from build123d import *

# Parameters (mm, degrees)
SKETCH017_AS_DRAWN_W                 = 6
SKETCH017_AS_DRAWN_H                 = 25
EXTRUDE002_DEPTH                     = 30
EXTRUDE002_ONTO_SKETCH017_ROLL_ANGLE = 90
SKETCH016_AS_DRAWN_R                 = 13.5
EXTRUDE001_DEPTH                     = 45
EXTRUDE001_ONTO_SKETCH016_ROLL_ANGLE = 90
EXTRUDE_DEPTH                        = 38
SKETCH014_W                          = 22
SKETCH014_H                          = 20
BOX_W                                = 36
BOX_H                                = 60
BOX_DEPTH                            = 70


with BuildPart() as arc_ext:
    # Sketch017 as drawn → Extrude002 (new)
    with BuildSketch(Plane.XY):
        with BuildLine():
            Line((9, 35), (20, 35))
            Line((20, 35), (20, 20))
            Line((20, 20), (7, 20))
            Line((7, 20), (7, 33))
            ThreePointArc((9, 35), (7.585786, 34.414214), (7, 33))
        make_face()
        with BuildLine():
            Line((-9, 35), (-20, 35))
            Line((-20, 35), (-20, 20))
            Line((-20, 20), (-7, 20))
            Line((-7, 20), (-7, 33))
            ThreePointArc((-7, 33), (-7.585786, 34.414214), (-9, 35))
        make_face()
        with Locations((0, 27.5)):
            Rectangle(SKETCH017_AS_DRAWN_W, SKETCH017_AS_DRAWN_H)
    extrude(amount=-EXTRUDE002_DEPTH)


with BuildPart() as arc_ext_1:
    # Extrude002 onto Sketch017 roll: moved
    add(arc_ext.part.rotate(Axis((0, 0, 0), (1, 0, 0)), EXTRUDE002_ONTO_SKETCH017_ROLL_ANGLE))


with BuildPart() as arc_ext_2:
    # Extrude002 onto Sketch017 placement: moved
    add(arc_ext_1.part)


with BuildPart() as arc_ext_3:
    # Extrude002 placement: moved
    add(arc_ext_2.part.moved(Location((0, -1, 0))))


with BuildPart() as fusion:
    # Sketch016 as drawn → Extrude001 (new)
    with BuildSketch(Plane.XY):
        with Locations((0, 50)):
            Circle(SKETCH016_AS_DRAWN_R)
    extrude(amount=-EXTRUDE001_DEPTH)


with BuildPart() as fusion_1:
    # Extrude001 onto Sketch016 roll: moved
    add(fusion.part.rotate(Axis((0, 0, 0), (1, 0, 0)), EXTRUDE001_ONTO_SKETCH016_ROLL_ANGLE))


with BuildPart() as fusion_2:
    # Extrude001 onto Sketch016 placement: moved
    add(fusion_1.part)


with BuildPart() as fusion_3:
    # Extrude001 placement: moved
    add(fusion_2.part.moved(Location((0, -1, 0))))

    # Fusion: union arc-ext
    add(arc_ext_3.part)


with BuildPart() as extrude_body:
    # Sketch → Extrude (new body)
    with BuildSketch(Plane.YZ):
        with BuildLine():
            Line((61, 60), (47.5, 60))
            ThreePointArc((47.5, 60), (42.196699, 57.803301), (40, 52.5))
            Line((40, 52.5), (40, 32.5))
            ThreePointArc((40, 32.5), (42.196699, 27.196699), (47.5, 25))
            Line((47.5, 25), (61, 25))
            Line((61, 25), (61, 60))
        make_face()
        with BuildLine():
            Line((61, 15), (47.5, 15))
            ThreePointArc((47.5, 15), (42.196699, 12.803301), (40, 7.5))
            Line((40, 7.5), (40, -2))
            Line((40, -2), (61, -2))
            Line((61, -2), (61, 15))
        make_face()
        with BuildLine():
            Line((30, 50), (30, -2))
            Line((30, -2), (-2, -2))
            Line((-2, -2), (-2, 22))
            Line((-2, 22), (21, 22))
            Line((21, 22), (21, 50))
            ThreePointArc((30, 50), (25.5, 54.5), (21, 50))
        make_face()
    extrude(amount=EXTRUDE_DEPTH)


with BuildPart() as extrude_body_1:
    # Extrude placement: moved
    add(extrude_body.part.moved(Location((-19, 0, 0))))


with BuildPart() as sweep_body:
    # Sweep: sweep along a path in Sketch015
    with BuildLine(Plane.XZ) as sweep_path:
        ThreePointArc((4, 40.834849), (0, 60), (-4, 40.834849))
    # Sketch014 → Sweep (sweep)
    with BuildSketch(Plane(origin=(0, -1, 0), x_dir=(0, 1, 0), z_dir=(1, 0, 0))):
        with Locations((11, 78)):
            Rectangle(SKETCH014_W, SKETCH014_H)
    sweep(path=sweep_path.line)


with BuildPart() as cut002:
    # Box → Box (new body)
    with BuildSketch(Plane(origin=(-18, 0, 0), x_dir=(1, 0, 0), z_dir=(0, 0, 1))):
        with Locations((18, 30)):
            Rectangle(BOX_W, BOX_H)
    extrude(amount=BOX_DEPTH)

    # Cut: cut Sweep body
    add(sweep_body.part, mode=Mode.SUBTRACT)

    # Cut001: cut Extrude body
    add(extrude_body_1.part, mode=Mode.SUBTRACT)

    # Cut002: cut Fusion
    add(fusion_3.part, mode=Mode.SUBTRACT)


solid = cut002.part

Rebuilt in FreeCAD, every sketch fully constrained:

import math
import FreeCAD as App
import Part
import Sketcher

V = App.Vector


def add_polygon(sketch, points):
    """Adds a closed chain of lines whose ends are joined by coincident constraints."""
    first, n = sketch.GeometryCount, len(points)
    for a, b in zip(points, points[1:] + points[:1]):
        sketch.addGeometry(Part.LineSegment(App.Vector(*a, 0), App.Vector(*b, 0)), False)
    for i in range(n):
        sketch.addConstraint(Sketcher.Constraint("Coincident", first + i, 2, first + (i + 1) % n, 1))

doc = App.newDocument("Part")
params = doc.addObject("Spreadsheet::Sheet", "Params")
for row, (alias, value) in enumerate([
    ("sketch1_radius", "1.999999 mm"),
    ("sketch1_width", "11 mm"),
    ("sketch1_width2", "6 mm"),
    ("sketch1_height", "25 mm"),
    ("pad1_length", "30 mm"),
    ("sketch2_diameter", "27 mm"),
    ("pad2_length", "45 mm"),
    ("sketch3_radius", "7.5 mm"),
    ("sketch3_radius2", "4.5 mm"),
    ("sketch3_width", "21 mm"),
    ("sketch3_width2", "23 mm"),
    ("sketch3_height", "20 mm"),
    ("pad3_length", "38 mm"),
    ("sketch4_width", "22 mm"),
    ("sketch4_height", "20 mm"),
    ("sketch5_radius", "10 mm"),
    ("sketch6_width", "36 mm"),
    ("sketch6_height", "60 mm"),
    ("pad4_length", "70 mm"),
], start=1):
    params.set(f"A{row}", alias)
    params.set(f"B{row}", "=" + value)
    params.setAlias(f"B{row}", alias)

body = doc.addObject("PartDesign::Body", "Body")
body.AllowCompound = True

# Sketch on XY plane
sketch1 = doc.addObject("Sketcher::SketchObject", "Sketch")
body.addObject(sketch1)
sketch1.AttachmentSupport = (doc.XY_Plane, [""])
sketch1.MapMode = "FlatFace"
sketch1.addGeometry(Part.LineSegment(V(20, 35, 0), V(9, 35, 0)), False)  # 0
sketch1.addGeometry(Part.ArcOfCircle(Part.Circle(V(9, 33, 0), V(0, 0, 1), 2), math.radians(90), math.radians(180)), False)  # 1
sketch1.addGeometry(Part.LineSegment(V(7, 33, 0), V(7, 20, 0)), False)  # 2
sketch1.addGeometry(Part.LineSegment(V(7, 20, 0), V(20, 20, 0)), False)  # 3
sketch1.addGeometry(Part.LineSegment(V(20, 20, 0), V(20, 35, 0)), False)  # 4
sketch1.addGeometry(Part.LineSegment(V(-9, 35, 0), V(-20, 35, 0)), False)  # 5
sketch1.addGeometry(Part.LineSegment(V(-20, 35, 0), V(-20, 20, 0)), False)  # 6
sketch1.addGeometry(Part.LineSegment(V(-20, 20, 0), V(-7, 20, 0)), False)  # 7
sketch1.addGeometry(Part.LineSegment(V(-7, 20, 0), V(-7, 33, 0)), False)  # 8
sketch1.addGeometry(Part.ArcOfCircle(Part.Circle(V(-9, 33, 0), V(0, 0, 1), 2), math.radians(0), math.radians(90)), False)  # 9
add_polygon(sketch1, [(-3, 40), (-3, 15), (3, 15), (3, 40)])  # lines 10-13
sketch1.addConstraint([
    Sketcher.Constraint("Tangent", 0, 2, 1, 1),
    Sketcher.Constraint("Tangent", 1, 2, 2, 1),
    Sketcher.Constraint("Coincident", 2, 2, 3, 1),
    Sketcher.Constraint("Coincident", 3, 2, 4, 1),
    Sketcher.Constraint("Coincident", 4, 2, 0, 1),
    Sketcher.Constraint("Coincident", 5, 2, 6, 1),
    Sketcher.Constraint("Coincident", 6, 2, 7, 1),
    Sketcher.Constraint("Coincident", 7, 2, 8, 1),
    Sketcher.Constraint("Tangent", 8, 2, 9, 1),
    Sketcher.Constraint("Tangent", 9, 2, 5, 1),
    Sketcher.Constraint("Horizontal", 0),
    Sketcher.Constraint("Vertical", 2),
    Sketcher.Constraint("Horizontal", 3),
    Sketcher.Constraint("Vertical", 4),
    Sketcher.Constraint("Horizontal", 5),
    Sketcher.Constraint("Vertical", 6),
    Sketcher.Constraint("Horizontal", 7),
    Sketcher.Constraint("Vertical", 8),
    Sketcher.Constraint("Vertical", 10),
    Sketcher.Constraint("Horizontal", 11),
    Sketcher.Constraint("Vertical", 12),
    Sketcher.Constraint("Horizontal", 13),
    Sketcher.Constraint("Equal", 1, 9),
    Sketcher.Constraint("Symmetric", 1, 3, 9, 3, -2),
    Sketcher.Constraint("Symmetric", 3, 2, 6, 2, -2),
    Sketcher.Constraint("Equal", 7, 2),
    Sketcher.Constraint("Radius", 1, 1.999999),
    Sketcher.Constraint("DistanceX", 0, 2, 0, 1, 11.0),
    Sketcher.Constraint("DistanceX", 11, 1, 11, 2, 6.0),
    Sketcher.Constraint("DistanceY", 10, 2, 10, 1, 25.0),
    Sketcher.Constraint("DistanceX", -1, 1, 1, 3, 8.999999),
    Sketcher.Constraint("DistanceY", -1, 1, 1, 3, 33.000001),
    Sketcher.Constraint("DistanceX", 10, 2, -1, 1, 3.0),
    Sketcher.Constraint("DistanceY", -1, 1, 10, 2, 15.0),
])
sketch1.setExpression("Constraints[30]", "Params.sketch1_radius")
sketch1.setExpression("Constraints[31]", "Params.sketch1_width")
sketch1.setExpression("Constraints[32]", "Params.sketch1_width2")
sketch1.setExpression("Constraints[33]", "Params.sketch1_height")
pad1 = doc.addObject("PartDesign::Pad", "Pad")
body.addObject(pad1)
pad1.Profile = sketch1
pad1.setExpression("Length", "Params.pad1_length")
pad1.Reversed = True
body2 = doc.addObject("PartDesign::Body", "Body001")
body2.AllowCompound = True
doc.recompute()

body.Placement = App.Placement(V(0, 0, 0), App.Rotation(V(1, 0, 0), 90))
boolean = doc.addObject("PartDesign::Boolean", "Boolean")
body2.addObject(boolean)
boolean.Type = "Fuse"
boolean.addObjects([body])
body3 = doc.addObject("PartDesign::Body", "Body002")
body3.AllowCompound = True
doc.recompute()

body2.Placement = App.Placement(V(0, -1, 0), App.Rotation(V(0, 0, 1), 0))
boolean2 = doc.addObject("PartDesign::Boolean", "Boolean001")
body3.addObject(boolean2)
boolean2.Type = "Fuse"
boolean2.addObjects([body2])
body4 = doc.addObject("PartDesign::Body", "Body003")

# Sketch on XY plane
sketch2 = doc.addObject("Sketcher::SketchObject", "Sketch001")
body4.addObject(sketch2)
sketch2.AttachmentSupport = (doc.getObject("XY_Plane003"), [""])
sketch2.MapMode = "FlatFace"
sketch2.addGeometry(Part.Circle(V(0, 50, 0), V(0, 0, 1), 14), False)
sketch2.addConstraint([
    Sketcher.Constraint("PointOnObject", 0, 3, -2),
    Sketcher.Constraint("Diameter", 0, 27.0),
    Sketcher.Constraint("DistanceY", -1, 1, 0, 3, 50.0),
])
sketch2.setExpression("Constraints[1]", "Params.sketch2_diameter")
pad2 = doc.addObject("PartDesign::Pad", "Pad001")
body4.addObject(pad2)
pad2.Profile = sketch2
pad2.setExpression("Length", "Params.pad2_length")
pad2.Reversed = True
body5 = doc.addObject("PartDesign::Body", "Body004")
doc.recompute()

body4.Placement = App.Placement(V(0, 0, 0), App.Rotation(V(1, 0, 0), 90))
boolean3 = doc.addObject("PartDesign::Boolean", "Boolean002")
body5.addObject(boolean3)
boolean3.Type = "Fuse"
boolean3.addObjects([body4])
body6 = doc.addObject("PartDesign::Body", "Body005")
body6.AllowCompound = True
doc.recompute()

body5.Placement = App.Placement(V(0, -1, 0), App.Rotation(V(0, 0, 1), 0))
boolean4 = doc.addObject("PartDesign::Boolean", "Boolean003")
body6.addObject(boolean4)
boolean4.Type = "Fuse"
boolean4.addObjects([body5])
doc.recompute()

boolean5 = doc.addObject("PartDesign::Boolean", "Boolean004")
body6.addObject(boolean5)
boolean5.Type = "Fuse"
boolean5.addObjects([body3])
body7 = doc.addObject("PartDesign::Body", "Body006")
body7.AllowCompound = True

# Sketch on YZ plane
sketch3 = doc.addObject("Sketcher::SketchObject", "Sketch002")
body7.addObject(sketch3)
sketch3.AttachmentSupport = (doc.getObject("YZ_Plane006"), [""])
sketch3.MapMode = "FlatFace"
sketch3.addGeometry([
    Part.LineSegment(V(61, 60, 0), V(47.5, 60, 0)),  # 0
    Part.ArcOfCircle(Part.Circle(V(47.5, 52.5, 0), V(0, 0, 1), 7.5), math.radians(90), math.radians(180)),  # 1
    Part.LineSegment(V(40, 52.5, 0), V(40, 32.5, 0)),  # 2
    Part.ArcOfCircle(Part.Circle(V(47.5, 32.5, 0), V(0, 0, 1), 7.5), math.radians(180), math.radians(270)),  # 3
    Part.LineSegment(V(47.5, 25, 0), V(61, 25, 0)),  # 4
    Part.LineSegment(V(61, 25, 0), V(61, 60, 0)),  # 5
    Part.LineSegment(V(61, 15, 0), V(47.5, 15, 0)),  # 6
    Part.ArcOfCircle(Part.Circle(V(47.5, 7.5, 0), V(0, 0, 1), 7.5), math.radians(90), math.radians(180)),  # 7
    Part.LineSegment(V(40, 7.5, 0), V(40, -2, 0)),  # 8
    Part.LineSegment(V(40, -2, 0), V(61, -2, 0)),  # 9
    Part.LineSegment(V(61, -2, 0), V(61, 15, 0)),  # 10
    Part.LineSegment(V(30, -2, 0), V(30, 50, 0)),  # 11
    Part.ArcOfCircle(Part.Circle(V(25.5, 50, 0), V(0, 0, 1), 4.5), math.radians(0), math.radians(180)),  # 12
    Part.LineSegment(V(21, 50, 0), V(21, 22, 0)),  # 13
    Part.LineSegment(V(21, 22, 0), V(-2, 22, 0)),  # 14
    Part.LineSegment(V(-2, 22, 0), V(-2, -2, 0)),  # 15
    Part.LineSegment(V(-2, -2, 0), V(30, -2, 0)),  # 16
], False)
sketch3.addConstraint([
    Sketcher.Constraint("Tangent", 0, 2, 1, 1),
    Sketcher.Constraint("Tangent", 1, 2, 2, 1),
    Sketcher.Constraint("Tangent", 2, 2, 3, 1),
    Sketcher.Constraint("Tangent", 3, 2, 4, 1),
    Sketcher.Constraint("Coincident", 4, 2, 5, 1),
    Sketcher.Constraint("Coincident", 5, 2, 0, 1),
    Sketcher.Constraint("Tangent", 6, 2, 7, 1),
    Sketcher.Constraint("Tangent", 7, 2, 8, 1),
    Sketcher.Constraint("Coincident", 8, 2, 9, 1),
    Sketcher.Constraint("Coincident", 9, 2, 10, 1),
    Sketcher.Constraint("Coincident", 10, 2, 6, 1),
    Sketcher.Constraint("Tangent", 11, 2, 12, 1),
    Sketcher.Constraint("Tangent", 12, 2, 13, 1),
    Sketcher.Constraint("Coincident", 13, 2, 14, 1),
    Sketcher.Constraint("Coincident", 14, 2, 15, 1),
    Sketcher.Constraint("Coincident", 15, 2, 16, 1),
    Sketcher.Constraint("Coincident", 16, 2, 11, 1),
    Sketcher.Constraint("Horizontal", 0),
    Sketcher.Constraint("Vertical", 2),
    Sketcher.Constraint("Horizontal", 4),
    Sketcher.Constraint("Vertical", 5),
    Sketcher.Constraint("Horizontal", 6),
    Sketcher.Constraint("Vertical", 8),
    Sketcher.Constraint("Horizontal", 9),
    Sketcher.Constraint("Vertical", 10),
    Sketcher.Constraint("Vertical", 11),
    Sketcher.Constraint("Vertical", 13),
    Sketcher.Constraint("Horizontal", 14),
    Sketcher.Constraint("Vertical", 15),
    Sketcher.Constraint("Horizontal", 16),
    Sketcher.Constraint("Equal", 1, 3),
    Sketcher.Constraint("Equal", 3, 7),
    Sketcher.Constraint("Horizontal", 9, 2, 15, 2),
    Sketcher.Constraint("Vertical", 3, 3, 7, 3),
    Sketcher.Constraint("Vertical", 5, 2, 9, 2),
    Sketcher.Constraint("Radius", 1, 7.5),
    Sketcher.Constraint("Radius", 12, 4.5),
    Sketcher.Constraint("DistanceX", 9, 1, 9, 2, 21.0),
    Sketcher.Constraint("DistanceX", 14, 2, 14, 1, 23.0),
    Sketcher.Constraint("DistanceY", 2, 2, 2, 1, 20.0),
    Sketcher.Constraint("DistanceY", 10, 1, 10, 2, 17.0),
    Sketcher.Constraint("DistanceY", 11, 1, 11, 2, 52.0),
    Sketcher.Constraint("DistanceY", 13, 2, 13, 1, 28.0),
    Sketcher.Constraint("DistanceY", -1, 1, 12, 3, 50.0),
    Sketcher.Constraint("DistanceY", -1, 1, 0, 2, 60.0),
    Sketcher.Constraint("DistanceX", -1, 1, 1, 2, 40.0),
    Sketcher.Constraint("DistanceX", -1, 1, 11, 2, 30.0),
])
sketch3.setExpression("Constraints[35]", "Params.sketch3_radius")
sketch3.setExpression("Constraints[36]", "Params.sketch3_radius2")
sketch3.setExpression("Constraints[37]", "Params.sketch3_width")
sketch3.setExpression("Constraints[38]", "Params.sketch3_width2")
sketch3.setExpression("Constraints[39]", "Params.sketch3_height")
pad3 = doc.addObject("PartDesign::Pad", "Pad002")
body7.addObject(pad3)
pad3.Profile = sketch3
pad3.setExpression("Length", "Params.pad3_length")
body8 = doc.addObject("PartDesign::Body", "Body007")
body8.AllowCompound = True
doc.recompute()

body7.Placement = App.Placement(V(-19, 0, 0), App.Rotation(V(0, 0, 1), 0))
boolean6 = doc.addObject("PartDesign::Boolean", "Boolean005")
body8.addObject(boolean6)
boolean6.Type = "Fuse"
boolean6.addObjects([body7])
body9 = doc.addObject("PartDesign::Body", "Body008")

# Sketch on YZ plane
sketch4 = doc.addObject("Sketcher::SketchObject", "Sketch003")
body9.addObject(sketch4)
sketch4.AttachmentSupport = (doc.getObject("YZ_Plane008"), [""])
sketch4.MapMode = "FlatFace"
add_polygon(sketch4, [(-1, 88), (-1, 68), (21, 68), (21, 88)])  # lines 0-3
sketch4.addConstraint([
    Sketcher.Constraint("Vertical", 0),
    Sketcher.Constraint("Horizontal", 1),
    Sketcher.Constraint("Vertical", 2),
    Sketcher.Constraint("Horizontal", 3),
    Sketcher.Constraint("DistanceX", 1, 1, 1, 2, 22.0),
    Sketcher.Constraint("DistanceY", 0, 2, 0, 1, 20.0),
    Sketcher.Constraint("DistanceX", 0, 2, -1, 1, 1.0),
    Sketcher.Constraint("DistanceY", -1, 1, 0, 2, 68.0),
])
sketch4.setExpression("Constraints[8]", "Params.sketch4_width")
sketch4.setExpression("Constraints[9]", "Params.sketch4_height")

# Sketch on XZ plane
sketch5 = doc.addObject("Sketcher::SketchObject", "Sketch004")
body9.addObject(sketch5)
sketch5.AttachmentSupport = (doc.getObject("XZ_Plane008"), [""])
sketch5.MapMode = "FlatFace"
sketch5.addGeometry(Part.ArcOfCircle(Part.Circle(V(0, 50, 0), V(0, 0, 1), 10), math.radians(-66), math.radians(246)), False)
sketch5.addConstraint([
    Sketcher.Constraint("Symmetric", 0, 1, 0, 2, -2),
    Sketcher.Constraint("Radius", 0, 10.0),
    Sketcher.Constraint("DistanceY", -1, 1, 0, 3, 50.0),
    Sketcher.Constraint("DistanceX", -1, 1, 0, 1, 4.0),
])
sketch5.setExpression("Constraints[1]", "Params.sketch5_radius")
doc.recompute()

additivepipe = doc.addObject("PartDesign::AdditivePipe", "AdditivePipe")
body9.addObject(additivepipe)
additivepipe.Profile = sketch4
additivepipe.Spine = (sketch5, ["Edge1"])
body10 = doc.addObject("PartDesign::Body", "Body009")

# Sketch on XY plane
sketch6 = doc.addObject("Sketcher::SketchObject", "Sketch005")
body10.addObject(sketch6)
sketch6.AttachmentSupport = (doc.getObject("XY_Plane009"), [""])
sketch6.MapMode = "FlatFace"
add_polygon(sketch6, [(-18, 60), (-18, 0), (18, 0), (18, 60)])  # lines 0-3
sketch6.addConstraint([
    Sketcher.Constraint("Vertical", 0),
    Sketcher.Constraint("Horizontal", 1),
    Sketcher.Constraint("Vertical", 2),
    Sketcher.Constraint("Horizontal", 3),
    Sketcher.Constraint("Symmetric", 0, 2, 1, 2, -1, 1),
    Sketcher.Constraint("DistanceX", 1, 1, 1, 2, 36.0),
    Sketcher.Constraint("DistanceY", 0, 2, 0, 1, 60.0),
])
sketch6.setExpression("Constraints[9]", "Params.sketch6_width")
sketch6.setExpression("Constraints[10]", "Params.sketch6_height")
pad4 = doc.addObject("PartDesign::Pad", "Pad003")
body10.addObject(pad4)
pad4.Profile = sketch6
pad4.setExpression("Length", "Params.pad4_length")
doc.recompute()

boolean7 = doc.addObject("PartDesign::Boolean", "Boolean006")
body10.addObject(boolean7)
boolean7.Type = "Cut"
boolean7.addObjects([body9])
doc.recompute()

boolean8 = doc.addObject("PartDesign::Boolean", "Boolean007")
body10.addObject(boolean8)
boolean8.Type = "Cut"
boolean8.addObjects([body8])
doc.recompute()

boolean9 = doc.addObject("PartDesign::Boolean", "Boolean008")
body10.addObject(boolean9)
boolean9.Type = "Cut"
boolean9.addObjects([body6])

doc.recompute()
